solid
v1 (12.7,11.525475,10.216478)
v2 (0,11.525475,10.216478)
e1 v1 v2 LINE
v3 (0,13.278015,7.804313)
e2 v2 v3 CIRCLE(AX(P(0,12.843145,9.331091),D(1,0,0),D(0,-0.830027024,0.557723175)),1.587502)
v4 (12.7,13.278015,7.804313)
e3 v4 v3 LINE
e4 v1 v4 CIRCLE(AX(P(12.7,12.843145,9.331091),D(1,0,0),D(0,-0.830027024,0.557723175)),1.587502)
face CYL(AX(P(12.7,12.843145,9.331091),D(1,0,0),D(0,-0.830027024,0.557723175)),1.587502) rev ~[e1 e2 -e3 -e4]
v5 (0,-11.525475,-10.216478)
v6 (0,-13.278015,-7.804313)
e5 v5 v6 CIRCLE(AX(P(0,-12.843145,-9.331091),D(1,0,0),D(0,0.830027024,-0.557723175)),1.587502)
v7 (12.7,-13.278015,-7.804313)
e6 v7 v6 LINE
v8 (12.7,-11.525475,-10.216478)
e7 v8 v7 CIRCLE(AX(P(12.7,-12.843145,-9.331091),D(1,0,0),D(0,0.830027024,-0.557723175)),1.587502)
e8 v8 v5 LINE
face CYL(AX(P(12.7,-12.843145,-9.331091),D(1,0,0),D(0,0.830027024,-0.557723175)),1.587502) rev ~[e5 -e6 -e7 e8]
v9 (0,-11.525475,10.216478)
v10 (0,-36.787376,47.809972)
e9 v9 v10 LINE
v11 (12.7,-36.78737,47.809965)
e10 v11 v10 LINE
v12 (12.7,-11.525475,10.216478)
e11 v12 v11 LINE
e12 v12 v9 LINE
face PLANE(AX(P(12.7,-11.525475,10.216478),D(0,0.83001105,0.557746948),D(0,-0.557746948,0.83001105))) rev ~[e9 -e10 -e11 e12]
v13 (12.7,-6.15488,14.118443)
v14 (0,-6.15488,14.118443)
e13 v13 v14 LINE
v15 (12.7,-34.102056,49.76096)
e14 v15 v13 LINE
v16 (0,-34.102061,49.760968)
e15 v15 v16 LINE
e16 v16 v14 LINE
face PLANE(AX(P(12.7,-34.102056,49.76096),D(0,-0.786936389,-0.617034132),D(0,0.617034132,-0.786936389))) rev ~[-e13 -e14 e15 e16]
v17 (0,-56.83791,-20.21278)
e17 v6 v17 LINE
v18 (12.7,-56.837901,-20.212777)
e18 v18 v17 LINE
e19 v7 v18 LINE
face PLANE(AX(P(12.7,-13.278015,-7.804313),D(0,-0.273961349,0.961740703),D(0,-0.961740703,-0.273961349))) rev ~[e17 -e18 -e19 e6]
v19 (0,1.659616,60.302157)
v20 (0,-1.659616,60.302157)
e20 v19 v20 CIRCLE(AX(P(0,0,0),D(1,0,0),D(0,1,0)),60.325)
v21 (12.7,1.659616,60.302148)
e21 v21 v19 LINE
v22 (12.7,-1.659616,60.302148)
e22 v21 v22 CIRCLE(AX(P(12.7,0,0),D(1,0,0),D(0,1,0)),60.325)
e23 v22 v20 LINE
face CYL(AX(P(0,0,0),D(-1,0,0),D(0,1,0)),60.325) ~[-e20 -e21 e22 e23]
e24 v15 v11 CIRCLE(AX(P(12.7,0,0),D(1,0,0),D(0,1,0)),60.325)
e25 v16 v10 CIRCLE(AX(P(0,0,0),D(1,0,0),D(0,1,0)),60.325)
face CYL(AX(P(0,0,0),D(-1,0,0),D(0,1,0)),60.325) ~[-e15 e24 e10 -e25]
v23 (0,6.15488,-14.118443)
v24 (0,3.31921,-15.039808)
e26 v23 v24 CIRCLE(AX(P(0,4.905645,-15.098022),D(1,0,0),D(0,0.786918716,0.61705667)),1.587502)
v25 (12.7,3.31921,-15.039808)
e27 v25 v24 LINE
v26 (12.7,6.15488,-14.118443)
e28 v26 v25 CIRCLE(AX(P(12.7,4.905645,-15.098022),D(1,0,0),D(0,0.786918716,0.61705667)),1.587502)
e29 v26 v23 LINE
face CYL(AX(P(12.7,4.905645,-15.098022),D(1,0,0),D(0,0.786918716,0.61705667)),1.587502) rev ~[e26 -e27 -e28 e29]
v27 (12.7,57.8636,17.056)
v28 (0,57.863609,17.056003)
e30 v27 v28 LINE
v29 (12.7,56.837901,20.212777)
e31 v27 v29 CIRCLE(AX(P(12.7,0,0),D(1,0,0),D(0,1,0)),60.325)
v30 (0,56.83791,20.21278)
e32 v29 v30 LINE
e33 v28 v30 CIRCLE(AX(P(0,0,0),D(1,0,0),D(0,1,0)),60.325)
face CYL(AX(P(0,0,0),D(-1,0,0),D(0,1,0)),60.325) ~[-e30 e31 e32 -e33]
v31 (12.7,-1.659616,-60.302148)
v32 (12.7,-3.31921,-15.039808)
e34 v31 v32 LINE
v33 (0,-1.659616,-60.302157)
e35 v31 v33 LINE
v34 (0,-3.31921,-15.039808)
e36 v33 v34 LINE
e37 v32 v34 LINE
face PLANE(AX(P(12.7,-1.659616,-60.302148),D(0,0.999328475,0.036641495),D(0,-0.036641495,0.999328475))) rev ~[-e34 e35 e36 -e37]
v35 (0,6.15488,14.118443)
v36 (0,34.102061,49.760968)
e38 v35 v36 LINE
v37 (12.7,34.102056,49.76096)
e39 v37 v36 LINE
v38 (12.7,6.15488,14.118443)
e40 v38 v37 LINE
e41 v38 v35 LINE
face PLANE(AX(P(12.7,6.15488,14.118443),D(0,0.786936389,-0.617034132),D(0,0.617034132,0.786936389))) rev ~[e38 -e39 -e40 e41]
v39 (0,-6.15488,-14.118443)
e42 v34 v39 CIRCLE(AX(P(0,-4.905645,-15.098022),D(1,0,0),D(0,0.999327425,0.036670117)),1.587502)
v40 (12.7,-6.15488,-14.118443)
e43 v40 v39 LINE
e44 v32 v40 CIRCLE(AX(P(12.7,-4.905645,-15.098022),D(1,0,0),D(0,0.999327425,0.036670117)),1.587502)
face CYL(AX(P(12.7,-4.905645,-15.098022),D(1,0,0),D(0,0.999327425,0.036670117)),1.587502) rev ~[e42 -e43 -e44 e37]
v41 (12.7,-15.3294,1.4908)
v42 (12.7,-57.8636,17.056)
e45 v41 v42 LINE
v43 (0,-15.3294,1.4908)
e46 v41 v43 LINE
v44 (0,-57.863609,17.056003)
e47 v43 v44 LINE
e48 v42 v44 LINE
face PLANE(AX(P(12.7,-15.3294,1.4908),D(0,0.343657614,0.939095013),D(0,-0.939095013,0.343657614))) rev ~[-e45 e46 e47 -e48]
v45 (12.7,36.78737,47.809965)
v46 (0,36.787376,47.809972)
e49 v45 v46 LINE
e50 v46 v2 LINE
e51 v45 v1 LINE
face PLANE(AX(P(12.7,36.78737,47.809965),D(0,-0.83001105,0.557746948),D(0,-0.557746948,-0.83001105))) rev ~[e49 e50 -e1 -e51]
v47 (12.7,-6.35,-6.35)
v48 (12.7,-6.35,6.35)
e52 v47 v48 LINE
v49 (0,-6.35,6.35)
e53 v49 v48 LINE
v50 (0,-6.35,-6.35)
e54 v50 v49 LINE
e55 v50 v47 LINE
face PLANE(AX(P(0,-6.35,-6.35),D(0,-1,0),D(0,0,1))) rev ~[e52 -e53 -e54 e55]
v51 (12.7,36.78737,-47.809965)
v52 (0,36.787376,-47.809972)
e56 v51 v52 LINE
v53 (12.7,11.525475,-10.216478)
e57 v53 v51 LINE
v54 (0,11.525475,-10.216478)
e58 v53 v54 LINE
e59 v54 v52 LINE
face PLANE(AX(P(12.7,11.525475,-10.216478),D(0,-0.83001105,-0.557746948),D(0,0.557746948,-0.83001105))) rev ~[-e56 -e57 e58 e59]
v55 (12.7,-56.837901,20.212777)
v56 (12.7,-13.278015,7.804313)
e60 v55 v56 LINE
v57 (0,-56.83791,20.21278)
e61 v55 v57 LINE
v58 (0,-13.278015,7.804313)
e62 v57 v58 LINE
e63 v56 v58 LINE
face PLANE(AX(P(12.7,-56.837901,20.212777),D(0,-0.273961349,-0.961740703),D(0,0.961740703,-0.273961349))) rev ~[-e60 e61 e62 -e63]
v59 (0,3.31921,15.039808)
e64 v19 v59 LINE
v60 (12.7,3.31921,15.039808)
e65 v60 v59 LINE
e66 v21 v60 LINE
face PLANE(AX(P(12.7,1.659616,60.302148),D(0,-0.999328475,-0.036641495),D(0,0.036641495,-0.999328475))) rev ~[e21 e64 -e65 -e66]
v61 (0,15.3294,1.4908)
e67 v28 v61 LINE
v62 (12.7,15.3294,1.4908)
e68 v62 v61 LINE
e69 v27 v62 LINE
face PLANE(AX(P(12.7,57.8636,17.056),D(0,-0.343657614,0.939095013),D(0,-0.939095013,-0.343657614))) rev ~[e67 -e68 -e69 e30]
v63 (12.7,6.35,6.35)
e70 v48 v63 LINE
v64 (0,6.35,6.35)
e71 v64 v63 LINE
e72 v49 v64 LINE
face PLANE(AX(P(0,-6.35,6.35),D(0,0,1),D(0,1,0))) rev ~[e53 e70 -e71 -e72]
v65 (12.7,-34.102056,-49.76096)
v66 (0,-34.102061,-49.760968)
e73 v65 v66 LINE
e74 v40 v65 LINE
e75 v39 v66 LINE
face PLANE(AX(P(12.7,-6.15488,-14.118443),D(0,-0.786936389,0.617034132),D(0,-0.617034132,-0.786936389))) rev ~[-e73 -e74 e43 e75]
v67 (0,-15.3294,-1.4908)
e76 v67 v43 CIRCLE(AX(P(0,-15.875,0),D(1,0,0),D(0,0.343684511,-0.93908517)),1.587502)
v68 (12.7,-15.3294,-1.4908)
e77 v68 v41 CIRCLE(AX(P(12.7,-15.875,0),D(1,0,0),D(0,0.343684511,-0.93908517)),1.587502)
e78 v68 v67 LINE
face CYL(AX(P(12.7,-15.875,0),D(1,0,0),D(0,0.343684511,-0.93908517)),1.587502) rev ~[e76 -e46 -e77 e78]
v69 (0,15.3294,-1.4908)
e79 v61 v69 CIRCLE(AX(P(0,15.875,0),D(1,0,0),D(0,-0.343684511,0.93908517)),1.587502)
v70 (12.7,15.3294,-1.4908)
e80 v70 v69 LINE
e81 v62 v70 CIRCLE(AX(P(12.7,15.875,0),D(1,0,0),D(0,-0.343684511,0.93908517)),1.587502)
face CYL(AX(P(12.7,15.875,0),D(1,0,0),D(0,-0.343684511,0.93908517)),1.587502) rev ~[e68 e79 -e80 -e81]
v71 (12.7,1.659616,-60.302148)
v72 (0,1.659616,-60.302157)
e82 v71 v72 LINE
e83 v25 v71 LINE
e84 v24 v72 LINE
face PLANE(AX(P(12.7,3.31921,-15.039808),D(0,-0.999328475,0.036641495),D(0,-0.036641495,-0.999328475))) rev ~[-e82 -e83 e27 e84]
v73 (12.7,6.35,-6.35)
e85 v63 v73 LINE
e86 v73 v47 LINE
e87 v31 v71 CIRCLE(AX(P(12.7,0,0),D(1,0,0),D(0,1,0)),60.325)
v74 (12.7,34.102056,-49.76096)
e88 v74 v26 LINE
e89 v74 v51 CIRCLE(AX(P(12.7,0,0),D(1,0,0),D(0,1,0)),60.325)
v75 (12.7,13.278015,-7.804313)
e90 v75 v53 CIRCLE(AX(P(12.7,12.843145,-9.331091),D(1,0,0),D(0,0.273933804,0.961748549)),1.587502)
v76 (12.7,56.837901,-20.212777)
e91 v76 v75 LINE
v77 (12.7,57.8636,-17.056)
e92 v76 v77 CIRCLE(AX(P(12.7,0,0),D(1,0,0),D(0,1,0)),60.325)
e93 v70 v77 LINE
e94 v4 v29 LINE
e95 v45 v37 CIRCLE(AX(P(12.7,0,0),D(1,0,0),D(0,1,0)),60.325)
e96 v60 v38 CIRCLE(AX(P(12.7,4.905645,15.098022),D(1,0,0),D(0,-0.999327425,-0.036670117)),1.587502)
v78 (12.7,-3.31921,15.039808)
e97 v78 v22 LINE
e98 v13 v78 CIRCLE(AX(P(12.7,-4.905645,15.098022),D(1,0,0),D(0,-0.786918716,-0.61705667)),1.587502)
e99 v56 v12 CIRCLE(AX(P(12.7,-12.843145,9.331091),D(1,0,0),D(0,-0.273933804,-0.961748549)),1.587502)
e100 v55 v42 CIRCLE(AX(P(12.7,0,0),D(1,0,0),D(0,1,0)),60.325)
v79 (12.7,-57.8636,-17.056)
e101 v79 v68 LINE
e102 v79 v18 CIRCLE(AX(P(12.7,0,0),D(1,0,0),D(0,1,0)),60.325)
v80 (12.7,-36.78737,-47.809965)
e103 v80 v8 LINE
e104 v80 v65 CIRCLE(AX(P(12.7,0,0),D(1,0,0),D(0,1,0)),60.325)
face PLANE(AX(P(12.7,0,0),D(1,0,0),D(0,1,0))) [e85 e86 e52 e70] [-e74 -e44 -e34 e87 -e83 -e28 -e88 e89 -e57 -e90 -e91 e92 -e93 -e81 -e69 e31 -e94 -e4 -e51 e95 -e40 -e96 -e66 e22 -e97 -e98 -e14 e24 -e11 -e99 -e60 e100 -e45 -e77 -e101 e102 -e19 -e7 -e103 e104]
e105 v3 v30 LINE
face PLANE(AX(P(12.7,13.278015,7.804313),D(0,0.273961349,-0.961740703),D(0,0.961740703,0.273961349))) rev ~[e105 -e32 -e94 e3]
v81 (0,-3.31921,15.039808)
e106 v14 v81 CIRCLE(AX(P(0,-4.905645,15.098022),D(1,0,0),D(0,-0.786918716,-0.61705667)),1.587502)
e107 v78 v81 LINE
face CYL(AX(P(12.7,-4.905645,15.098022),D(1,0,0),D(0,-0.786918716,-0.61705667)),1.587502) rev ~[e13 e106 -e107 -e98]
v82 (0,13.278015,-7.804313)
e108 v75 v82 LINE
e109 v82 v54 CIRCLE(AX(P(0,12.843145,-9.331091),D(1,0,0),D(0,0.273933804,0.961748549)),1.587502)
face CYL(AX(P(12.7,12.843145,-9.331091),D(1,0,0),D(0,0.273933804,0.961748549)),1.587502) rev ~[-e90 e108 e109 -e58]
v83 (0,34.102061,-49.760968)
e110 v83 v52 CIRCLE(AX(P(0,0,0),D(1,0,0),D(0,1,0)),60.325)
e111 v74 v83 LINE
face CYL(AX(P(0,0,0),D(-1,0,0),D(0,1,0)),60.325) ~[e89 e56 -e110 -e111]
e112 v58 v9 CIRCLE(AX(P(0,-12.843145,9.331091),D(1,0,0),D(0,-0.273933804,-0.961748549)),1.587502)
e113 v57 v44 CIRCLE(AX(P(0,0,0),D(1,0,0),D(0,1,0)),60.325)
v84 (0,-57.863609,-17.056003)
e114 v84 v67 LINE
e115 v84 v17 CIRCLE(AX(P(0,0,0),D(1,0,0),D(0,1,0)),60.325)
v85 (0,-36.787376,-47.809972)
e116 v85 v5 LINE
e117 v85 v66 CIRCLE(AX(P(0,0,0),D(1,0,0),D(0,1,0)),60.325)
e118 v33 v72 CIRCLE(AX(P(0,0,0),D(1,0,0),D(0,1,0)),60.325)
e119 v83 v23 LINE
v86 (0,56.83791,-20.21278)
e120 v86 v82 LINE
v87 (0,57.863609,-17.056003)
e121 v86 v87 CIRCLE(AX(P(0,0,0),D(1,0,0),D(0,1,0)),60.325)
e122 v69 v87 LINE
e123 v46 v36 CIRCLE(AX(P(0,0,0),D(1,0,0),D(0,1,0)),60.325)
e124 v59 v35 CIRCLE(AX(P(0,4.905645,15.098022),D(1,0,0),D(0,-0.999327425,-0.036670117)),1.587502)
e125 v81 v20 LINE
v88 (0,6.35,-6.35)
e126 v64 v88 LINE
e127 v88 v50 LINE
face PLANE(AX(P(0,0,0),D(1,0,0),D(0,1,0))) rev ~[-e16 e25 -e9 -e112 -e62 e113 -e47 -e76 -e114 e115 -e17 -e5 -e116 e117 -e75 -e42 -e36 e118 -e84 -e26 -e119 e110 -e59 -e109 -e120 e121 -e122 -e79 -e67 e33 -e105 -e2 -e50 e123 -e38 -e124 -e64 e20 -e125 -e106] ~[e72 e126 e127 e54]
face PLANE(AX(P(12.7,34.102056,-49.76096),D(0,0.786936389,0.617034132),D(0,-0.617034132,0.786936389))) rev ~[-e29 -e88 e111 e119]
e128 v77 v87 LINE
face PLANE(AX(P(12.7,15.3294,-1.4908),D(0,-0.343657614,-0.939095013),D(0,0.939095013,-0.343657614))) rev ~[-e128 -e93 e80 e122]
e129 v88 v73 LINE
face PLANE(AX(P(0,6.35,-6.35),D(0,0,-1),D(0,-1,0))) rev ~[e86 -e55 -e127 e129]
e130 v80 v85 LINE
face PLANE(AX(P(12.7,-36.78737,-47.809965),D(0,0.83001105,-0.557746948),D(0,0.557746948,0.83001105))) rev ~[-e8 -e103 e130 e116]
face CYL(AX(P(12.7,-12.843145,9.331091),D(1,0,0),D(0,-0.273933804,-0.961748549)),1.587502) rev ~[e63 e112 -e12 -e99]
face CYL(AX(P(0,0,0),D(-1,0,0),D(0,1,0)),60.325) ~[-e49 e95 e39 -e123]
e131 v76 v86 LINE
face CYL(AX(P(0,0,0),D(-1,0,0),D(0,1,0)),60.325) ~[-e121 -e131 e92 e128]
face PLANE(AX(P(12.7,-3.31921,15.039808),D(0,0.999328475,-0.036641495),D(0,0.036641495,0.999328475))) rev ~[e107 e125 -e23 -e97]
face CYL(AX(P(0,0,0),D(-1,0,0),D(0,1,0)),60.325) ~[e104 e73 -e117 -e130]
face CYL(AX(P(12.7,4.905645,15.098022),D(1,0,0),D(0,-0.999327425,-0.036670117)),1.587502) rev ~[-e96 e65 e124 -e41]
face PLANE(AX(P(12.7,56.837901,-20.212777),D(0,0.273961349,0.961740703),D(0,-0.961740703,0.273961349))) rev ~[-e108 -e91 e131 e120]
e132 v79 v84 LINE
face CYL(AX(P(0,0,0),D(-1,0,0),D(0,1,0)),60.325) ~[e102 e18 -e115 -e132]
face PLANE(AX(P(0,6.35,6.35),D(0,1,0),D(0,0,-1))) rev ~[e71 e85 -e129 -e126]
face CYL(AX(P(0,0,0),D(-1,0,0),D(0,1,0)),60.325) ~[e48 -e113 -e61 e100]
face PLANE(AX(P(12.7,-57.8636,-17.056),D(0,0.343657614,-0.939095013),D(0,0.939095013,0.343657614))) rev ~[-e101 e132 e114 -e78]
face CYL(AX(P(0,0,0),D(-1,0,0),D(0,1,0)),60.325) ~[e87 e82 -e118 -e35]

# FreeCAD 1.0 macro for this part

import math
import FreeCAD as App
import Part
import Sketcher
Q = App.Units.Quantity

doc = App.newDocument("Part")
params = doc.addObject("Spreadsheet::Sheet", "Params")
for row, (alias, value) in enumerate([
    ("sketch1_diameter", "4.75 in"),
    ("sketch1_width", "0.5 in"),
    ("pad1_length", "0.5 in"),
    ("sketch2_radius", "0.0625 in"),
    ("sketch2_radius2", "2.375 in"),
], start=1):
    params.set(f"A{row}", alias)
    params.set(f"B{row}", "=" + value)
    params.setAlias(f"B{row}", alias)

body = doc.addObject("PartDesign::Body", "Body")

# Sketch on YZ plane
sketch1 = doc.addObject("Sketcher::SketchObject", "Sketch")
body.addObject(sketch1)
sketch1.AttachmentSupport = (doc.YZ_Plane, [""])
sketch1.MapMode = "FlatFace"
sketch1.addGeometry([
    Part.Circle(App.Vector(0, 0, 0), App.Vector(0, 0, 1), 60),  # 0
    Part.LineSegment(App.Vector(-6, -6, 0), App.Vector(-6, 6, 0)),  # 1
    Part.LineSegment(App.Vector(-6, 6, 0), App.Vector(6, 6, 0)),  # 2
    Part.LineSegment(App.Vector(6, 6, 0), App.Vector(6, -6, 0)),  # 3
    Part.LineSegment(App.Vector(6, -6, 0), App.Vector(-6, -6, 0)),  # 4
], False)
sketch1.addConstraint([
    Sketcher.Constraint("Coincident", 1, 2, 2, 1),
    Sketcher.Constraint("Coincident", 2, 2, 3, 1),
    Sketcher.Constraint("Coincident", 3, 2, 4, 1),
    Sketcher.Constraint("Coincident", 4, 2, 1, 1),
    Sketcher.Constraint("Vertical", 1),
    Sketcher.Constraint("Horizontal", 2),
    Sketcher.Constraint("Vertical", 3),
    Sketcher.Constraint("Horizontal", 4),
    Sketcher.Constraint("Coincident", 0, 3, -1, 1),
    Sketcher.Constraint("Symmetric", 1, 2, 3, 2, -1, 1),
    Sketcher.Constraint("Equal", 4, 1),
    Sketcher.Constraint("Diameter", 0, Q("4.75 in")),
    Sketcher.Constraint("DistanceX", 2, 1, 2, 2, Q("0.5 in")),
])
sketch1.setExpression("Constraints[11]", "Params.sketch1_diameter")
sketch1.setExpression("Constraints[12]", "Params.sketch1_width")
pad1 = doc.addObject("PartDesign::Pad", "Pad")
body.addObject(pad1)
pad1.Profile = sketch1
pad1.setExpression("Length", "Params.pad1_length")

# Sketch on YZ plane
sketch2 = doc.addObject("Sketcher::SketchObject", "Sketch001")
body.addObject(sketch2)
sketch2.AttachmentSupport = (doc.YZ_Plane, [""])
sketch2.MapMode = "FlatFace"
sketch2.AttachmentOffset = App.Placement(App.Vector(0, 0, 0.5 * 25.4), App.Rotation())
sketch2.addGeometry([
    Part.LineSegment(App.Vector(15.3, -1.5, 0), App.Vector(57.9, -17.1, 0)),
    Part.ArcOfCircle(Part.Circle(App.Vector(0, 0, 0), App.Vector(0, 0, 1), 60.3), math.radians(-16), math.radians(16)),
    Part.LineSegment(App.Vector(57.9, 17.1, 0), App.Vector(15.3, 1.5, 0)),
    Part.ArcOfCircle(Part.Circle(App.Vector(15.9, 0, 0), App.Vector(0, 0, 1), 1.6), math.radians(110), math.radians(250)),
], False)
sketch2.addConstraint([
    Sketcher.Constraint("Coincident", 0, 2, 1, 1),
    Sketcher.Constraint("Coincident", 1, 2, 2, 1),
    Sketcher.Constraint("Tangent", 2, 2, 3, 1),
    Sketcher.Constraint("Tangent", 3, 2, 0, 1),
    Sketcher.Constraint("Coincident", 1, 3, -1, 1),
    Sketcher.Constraint("Symmetric", 2, 2, 3, 2, -1),
    Sketcher.Constraint("Radius", 3, Q("0.0625 in")),
    Sketcher.Constraint("Radius", 1, Q("2.375 in")),
    Sketcher.Constraint("Angle", 0, Q("-20.0999 deg")),
    Sketcher.Constraint("DistanceX", -1, 1, 3, 3, Q("0.625 in")),
])
sketch2.setExpression("Constraints[6]", "Params.sketch2_radius")
sketch2.setExpression("Constraints[7]", "Params.sketch2_radius2")
pocket1 = doc.addObject("PartDesign::Pocket", "Pocket")
body.addObject(pocket1)
pocket1.Profile = sketch2
pocket1.Type = "ThroughAll"
doc.recompute()

polarpattern = doc.addObject("PartDesign::PolarPattern", "PolarPattern")
body.addObject(polarpattern)
polarpattern.Originals = [pocket1]
polarpattern.Axis = (doc.X_Axis, [""])
polarpattern.Angle = 360
polarpattern.Occurrences = 10
body.Tip = polarpattern

doc.recompute()
